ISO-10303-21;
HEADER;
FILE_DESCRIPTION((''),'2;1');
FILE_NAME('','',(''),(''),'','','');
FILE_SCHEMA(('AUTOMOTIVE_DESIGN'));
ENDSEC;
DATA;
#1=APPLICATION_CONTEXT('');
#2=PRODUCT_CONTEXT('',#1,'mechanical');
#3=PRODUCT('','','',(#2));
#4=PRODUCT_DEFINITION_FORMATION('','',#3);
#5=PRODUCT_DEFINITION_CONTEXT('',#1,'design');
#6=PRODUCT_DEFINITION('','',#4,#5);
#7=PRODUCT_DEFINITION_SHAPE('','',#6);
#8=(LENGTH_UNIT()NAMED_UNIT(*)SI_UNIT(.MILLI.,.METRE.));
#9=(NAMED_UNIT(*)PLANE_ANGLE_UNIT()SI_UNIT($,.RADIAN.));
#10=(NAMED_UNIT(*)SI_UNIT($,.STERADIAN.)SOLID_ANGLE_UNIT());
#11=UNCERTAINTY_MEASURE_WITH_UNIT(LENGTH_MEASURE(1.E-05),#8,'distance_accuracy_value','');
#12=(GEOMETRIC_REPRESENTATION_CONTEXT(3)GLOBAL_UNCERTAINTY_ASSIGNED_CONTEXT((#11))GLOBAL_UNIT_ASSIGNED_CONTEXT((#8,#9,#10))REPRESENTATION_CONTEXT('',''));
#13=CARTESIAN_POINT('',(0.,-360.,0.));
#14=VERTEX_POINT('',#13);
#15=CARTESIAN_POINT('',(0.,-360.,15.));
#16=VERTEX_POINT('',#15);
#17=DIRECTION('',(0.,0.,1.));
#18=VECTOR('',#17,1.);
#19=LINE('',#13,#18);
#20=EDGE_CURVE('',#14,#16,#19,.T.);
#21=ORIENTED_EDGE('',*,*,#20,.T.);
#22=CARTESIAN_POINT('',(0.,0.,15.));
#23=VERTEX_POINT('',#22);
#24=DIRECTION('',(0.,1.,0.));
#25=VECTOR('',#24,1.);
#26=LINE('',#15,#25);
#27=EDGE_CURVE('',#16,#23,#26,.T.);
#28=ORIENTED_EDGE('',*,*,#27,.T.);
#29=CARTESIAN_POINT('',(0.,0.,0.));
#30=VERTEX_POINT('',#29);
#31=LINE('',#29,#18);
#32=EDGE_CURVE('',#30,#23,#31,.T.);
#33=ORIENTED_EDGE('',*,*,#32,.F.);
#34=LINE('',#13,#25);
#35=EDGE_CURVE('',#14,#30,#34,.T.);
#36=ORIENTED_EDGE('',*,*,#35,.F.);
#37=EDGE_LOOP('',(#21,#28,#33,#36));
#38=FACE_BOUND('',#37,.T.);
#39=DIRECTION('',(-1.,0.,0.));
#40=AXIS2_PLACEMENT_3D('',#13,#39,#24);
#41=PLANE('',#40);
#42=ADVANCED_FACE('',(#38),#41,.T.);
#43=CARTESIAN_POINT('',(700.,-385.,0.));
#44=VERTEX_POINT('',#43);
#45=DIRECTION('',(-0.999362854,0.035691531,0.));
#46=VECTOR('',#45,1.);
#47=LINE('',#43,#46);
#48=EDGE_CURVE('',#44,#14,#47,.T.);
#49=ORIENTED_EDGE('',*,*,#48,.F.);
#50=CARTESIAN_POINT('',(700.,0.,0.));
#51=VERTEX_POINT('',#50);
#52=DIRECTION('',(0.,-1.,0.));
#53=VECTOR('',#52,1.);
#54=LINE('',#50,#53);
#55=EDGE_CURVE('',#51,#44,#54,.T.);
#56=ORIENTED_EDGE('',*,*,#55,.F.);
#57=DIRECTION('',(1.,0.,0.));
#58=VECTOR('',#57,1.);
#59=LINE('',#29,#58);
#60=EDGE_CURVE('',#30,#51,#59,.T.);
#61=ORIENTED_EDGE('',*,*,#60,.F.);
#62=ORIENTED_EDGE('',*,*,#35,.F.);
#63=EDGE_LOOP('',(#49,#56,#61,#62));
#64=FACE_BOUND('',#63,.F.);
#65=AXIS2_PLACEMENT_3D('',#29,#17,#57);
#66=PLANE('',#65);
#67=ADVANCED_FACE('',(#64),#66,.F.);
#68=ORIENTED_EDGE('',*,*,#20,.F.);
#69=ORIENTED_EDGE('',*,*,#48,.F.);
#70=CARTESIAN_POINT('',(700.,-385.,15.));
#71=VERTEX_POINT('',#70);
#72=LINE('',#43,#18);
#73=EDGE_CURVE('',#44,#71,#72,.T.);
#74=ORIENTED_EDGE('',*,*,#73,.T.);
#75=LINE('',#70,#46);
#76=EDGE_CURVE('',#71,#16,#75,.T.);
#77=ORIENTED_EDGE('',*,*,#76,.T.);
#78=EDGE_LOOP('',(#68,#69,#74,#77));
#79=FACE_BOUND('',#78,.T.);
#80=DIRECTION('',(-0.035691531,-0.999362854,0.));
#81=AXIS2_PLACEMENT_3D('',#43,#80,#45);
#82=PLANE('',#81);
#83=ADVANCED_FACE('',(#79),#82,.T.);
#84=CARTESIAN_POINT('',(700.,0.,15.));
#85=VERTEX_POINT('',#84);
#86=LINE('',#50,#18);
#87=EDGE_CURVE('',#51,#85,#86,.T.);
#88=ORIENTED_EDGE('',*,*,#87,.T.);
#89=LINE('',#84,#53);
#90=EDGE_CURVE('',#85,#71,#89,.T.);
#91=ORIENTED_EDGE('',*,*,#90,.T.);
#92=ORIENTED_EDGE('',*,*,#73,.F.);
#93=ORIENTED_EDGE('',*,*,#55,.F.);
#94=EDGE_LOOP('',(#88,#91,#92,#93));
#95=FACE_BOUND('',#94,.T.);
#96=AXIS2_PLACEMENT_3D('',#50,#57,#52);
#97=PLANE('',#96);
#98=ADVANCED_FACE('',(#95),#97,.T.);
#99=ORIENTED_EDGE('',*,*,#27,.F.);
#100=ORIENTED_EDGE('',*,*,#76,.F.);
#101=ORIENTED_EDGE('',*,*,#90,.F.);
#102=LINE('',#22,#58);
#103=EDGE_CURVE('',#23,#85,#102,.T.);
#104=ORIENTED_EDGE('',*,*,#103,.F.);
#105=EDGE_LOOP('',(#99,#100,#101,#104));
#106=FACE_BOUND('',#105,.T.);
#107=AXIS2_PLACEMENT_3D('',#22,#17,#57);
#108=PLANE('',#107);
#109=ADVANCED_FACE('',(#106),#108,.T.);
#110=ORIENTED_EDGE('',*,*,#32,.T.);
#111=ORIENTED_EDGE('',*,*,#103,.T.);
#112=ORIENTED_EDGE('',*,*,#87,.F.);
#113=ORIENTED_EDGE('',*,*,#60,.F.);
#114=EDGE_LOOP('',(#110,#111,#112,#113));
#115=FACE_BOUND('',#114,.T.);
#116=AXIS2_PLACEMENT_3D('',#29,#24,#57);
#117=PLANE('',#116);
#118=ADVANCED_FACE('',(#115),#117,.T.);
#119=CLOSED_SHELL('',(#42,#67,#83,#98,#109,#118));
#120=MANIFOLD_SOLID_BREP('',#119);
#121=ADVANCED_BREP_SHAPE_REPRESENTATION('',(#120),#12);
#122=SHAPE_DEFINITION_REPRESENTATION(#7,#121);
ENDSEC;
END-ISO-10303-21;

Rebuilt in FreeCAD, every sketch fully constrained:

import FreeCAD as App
import Part
import Sketcher


def add_polygon(sketch, points):
    """Adds a closed chain of lines whose ends are joined by coincident constraints."""
    first, n = sketch.GeometryCount, len(points)
    for a, b in zip(points, points[1:] + points[:1]):
        sketch.addGeometry(Part.LineSegment(App.Vector(*a, 0), App.Vector(*b, 0)), False)
    for i in range(n):
        sketch.addConstraint(Sketcher.Constraint("Coincident", first + i, 2, first + (i + 1) % n, 1))

doc = App.newDocument("Part")
body = doc.addObject("PartDesign::Body", "Body")

# Sketch on XY plane
sketch1 = body.newObject("Sketcher::SketchObject", "Sketch")
sketch1.AttachmentSupport = (doc.getObject("XY_Plane"), [""])
sketch1.MapMode = "FlatFace"
add_polygon(sketch1, [(700, 0), (0, 0), (0, -360), (700, -385)])  # lines 0-3
sketch1.addConstraint([
    Sketcher.Constraint("Horizontal", 0),
    Sketcher.Constraint("Vertical", 1),
    Sketcher.Constraint("Vertical", 3),
    Sketcher.Constraint("Coincident", 0, 2, -1, 1),
    Sketcher.Constraint("DistanceX", 0, 2, 0, 1, 700.0),
    Sketcher.Constraint("DistanceY", 1, 2, 1, 1, 360.0),
    Sketcher.Constraint("DistanceY", 3, 1, 3, 2, 385.0),
])
pad1 = body.newObject("PartDesign::Pad", "Pad")
pad1.Profile = sketch1
pad1.Length = 15

doc.recompute()
